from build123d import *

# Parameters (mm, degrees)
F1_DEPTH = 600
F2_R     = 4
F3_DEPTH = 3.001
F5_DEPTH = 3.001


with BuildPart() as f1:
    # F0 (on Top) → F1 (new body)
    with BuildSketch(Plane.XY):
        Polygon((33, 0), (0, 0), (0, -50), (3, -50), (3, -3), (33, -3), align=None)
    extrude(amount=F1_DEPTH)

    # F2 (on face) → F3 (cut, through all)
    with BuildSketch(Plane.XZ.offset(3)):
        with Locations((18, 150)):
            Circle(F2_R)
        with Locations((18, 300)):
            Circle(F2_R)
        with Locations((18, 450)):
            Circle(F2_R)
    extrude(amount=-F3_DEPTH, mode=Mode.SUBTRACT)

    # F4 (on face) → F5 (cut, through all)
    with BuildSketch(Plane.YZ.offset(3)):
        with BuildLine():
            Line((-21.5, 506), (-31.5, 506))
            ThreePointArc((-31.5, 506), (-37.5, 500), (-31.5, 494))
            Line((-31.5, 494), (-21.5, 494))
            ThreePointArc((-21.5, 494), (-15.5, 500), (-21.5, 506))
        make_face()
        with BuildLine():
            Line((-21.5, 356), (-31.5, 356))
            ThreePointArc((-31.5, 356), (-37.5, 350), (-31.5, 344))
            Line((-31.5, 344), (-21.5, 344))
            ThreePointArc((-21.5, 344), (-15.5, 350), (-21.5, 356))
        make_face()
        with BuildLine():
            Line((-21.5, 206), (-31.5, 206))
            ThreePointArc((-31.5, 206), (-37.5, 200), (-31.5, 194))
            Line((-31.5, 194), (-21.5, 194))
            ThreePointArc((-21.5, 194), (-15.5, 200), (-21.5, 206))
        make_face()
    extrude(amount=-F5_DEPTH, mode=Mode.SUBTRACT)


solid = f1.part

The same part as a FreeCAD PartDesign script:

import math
import FreeCAD as App
import Part
import Sketcher
Q = App.Units.Quantity


def add_polygon(sketch, points):
    """Adds a closed chain of lines whose ends are joined by coincident constraints."""
    first, n = sketch.GeometryCount, len(points)
    for a, b in zip(points, points[1:] + points[:1]):
        sketch.addGeometry(Part.LineSegment(App.Vector(*a, 0), App.Vector(*b, 0)), False)
    for i in range(n):
        sketch.addConstraint(Sketcher.Constraint("Coincident", first + i, 2, first + (i + 1) % n, 1))

doc = App.newDocument("Part")
params = doc.addObject("Spreadsheet::Sheet", "Params")
for row, (alias, value) in enumerate([
    ("sketch1_width", "33 mm"),
    ("sketch1_width2", "3 mm"),
    ("sketch1_height", "50 mm"),
    ("pad1_length", "600 mm"),
    ("sketch2_diameter", "8 mm"),
    ("sketch3_radius", "6 mm"),
    ("sketch3_width", "10 mm"),
], start=1):
    params.set(f"A{row}", alias)
    params.set(f"B{row}", "=" + value)
    params.setAlias(f"B{row}", alias)

body = doc.addObject("PartDesign::Body", "Body")

# Sketch on XY plane
sketch1 = doc.addObject("Sketcher::SketchObject", "Sketch")
body.addObject(sketch1)
sketch1.AttachmentSupport = (doc.XY_Plane, [""])
sketch1.MapMode = "FlatFace"
add_polygon(sketch1, [(33, 0), (0, 0), (0, -50), (3, -50), (3, -3), (33, -3)])  # lines 0-5
sketch1.addConstraint(Sketcher.Constraint("Horizontal", 0))
sketch1.addConstraint(Sketcher.Constraint("Vertical", 1))
sketch1.addConstraint(Sketcher.Constraint("Horizontal", 2))
sketch1.addConstraint(Sketcher.Constraint("Vertical", 3))
sketch1.addConstraint(Sketcher.Constraint("Horizontal", 4))
sketch1.addConstraint(Sketcher.Constraint("Vertical", 5))
sketch1.addConstraint(Sketcher.Constraint("Coincident", 0, 2, -1, 1))
sketch1.addConstraint(Sketcher.Constraint("Equal", 2, 5))
sketch1.addConstraint(Sketcher.Constraint("DistanceX", 0, 2, 0, 1, Q("33 mm")))
sketch1.addConstraint(Sketcher.Constraint("DistanceX", 2, 1, 2, 2, Q("3 mm")))
sketch1.addConstraint(Sketcher.Constraint("DistanceY", 1, 2, 1, 1, Q("50 mm")))
sketch1.setExpression("Constraints[14]", "Params.sketch1_width")
sketch1.setExpression("Constraints[15]", "Params.sketch1_width2")
sketch1.setExpression("Constraints[16]", "Params.sketch1_height")
pad1 = doc.addObject("PartDesign::Pad", "Pad")
body.addObject(pad1)
pad1.Profile = sketch1
pad1.setExpression("Length", "Params.pad1_length")

# Sketch on XZ plane
sketch2 = doc.addObject("Sketcher::SketchObject", "Sketch001")
body.addObject(sketch2)
sketch2.AttachmentSupport = (doc.XZ_Plane, [""])
sketch2.MapMode = "FlatFace"
sketch2.AttachmentOffset = App.Placement(App.Vector(0, 0, 3), App.Rotation())
sketch2.addGeometry(Part.Circle(App.Vector(18, 150, 0), App.Vector(0, 0, 1), 4), False)
sketch2.addGeometry(Part.Circle(App.Vector(18, 300, 0), App.Vector(0, 0, 1), 4), False)
sketch2.addGeometry(Part.Circle(App.Vector(18, 450, 0), App.Vector(0, 0, 1), 4), False)
sketch2.addConstraint(Sketcher.Constraint("Equal", 0, 1))
sketch2.addConstraint(Sketcher.Constraint("Equal", 1, 2))
sketch2.addConstraint(Sketcher.Constraint("Vertical", 0, 3, 1, 3))
sketch2.addConstraint(Sketcher.Constraint("Vertical", 1, 3, 2, 3))
sketch2.addConstraint(Sketcher.Constraint("Diameter", 0, Q("8 mm")))
sketch2.addConstraint(Sketcher.Constraint("DistanceX", -1, 1, 0, 3, Q("18 mm")))
sketch2.addConstraint(Sketcher.Constraint("DistanceY", -1, 1, 0, 3, Q("150 mm")))
sketch2.addConstraint(Sketcher.Constraint("DistanceY", -1, 1, 1, 3, Q("300 mm")))
sketch2.addConstraint(Sketcher.Constraint("DistanceY", -1, 1, 2, 3, Q("450 mm")))
sketch2.setExpression("Constraints[4]", "Params.sketch2_diameter")
pocket1 = doc.addObject("PartDesign::Pocket", "Pocket")
body.addObject(pocket1)
pocket1.Profile = sketch2
pocket1.Type = "ThroughAll"

# Sketch on YZ plane
sketch3 = doc.addObject("Sketcher::SketchObject", "Sketch002")
body.addObject(sketch3)
sketch3.AttachmentSupport = (doc.YZ_Plane, [""])
sketch3.MapMode = "FlatFace"
sketch3.AttachmentOffset = App.Placement(App.Vector(0, 0, 3), App.Rotation())
sketch3.addGeometry(Part.LineSegment(App.Vector(-22, 506, 0), App.Vector(-32, 506, 0)), False)
sketch3.addGeometry(Part.ArcOfCircle(Part.Circle(App.Vector(-32, 500, 0), App.Vector(0, 0, 1), 6), math.radians(90), math.radians(270)), False)
sketch3.addGeometry(Part.LineSegment(App.Vector(-32, 494, 0), App.Vector(-22, 494, 0)), False)
sketch3.addGeometry(Part.ArcOfCircle(Part.Circle(App.Vector(-22, 500, 0), App.Vector(0, 0, 1), 6), math.radians(-90), math.radians(90)), False)
sketch3.addGeometry(Part.LineSegment(App.Vector(-22, 356, 0), App.Vector(-32, 356, 0)), False)
sketch3.addGeometry(Part.ArcOfCircle(Part.Circle(App.Vector(-32, 350, 0), App.Vector(0, 0, 1), 6), math.radians(90), math.radians(270)), False)
sketch3.addGeometry(Part.LineSegment(App.Vector(-32, 344, 0), App.Vector(-22, 344, 0)), False)
sketch3.addGeometry(Part.ArcOfCircle(Part.Circle(App.Vector(-22, 350, 0), App.Vector(0, 0, 1), 6), math.radians(-90), math.radians(90)), False)
sketch3.addGeometry(Part.LineSegment(App.Vector(-22, 206, 0), App.Vector(-32, 206, 0)), False)
sketch3.addGeometry(Part.ArcOfCircle(Part.Circle(App.Vector(-32, 200, 0), App.Vector(0, 0, 1), 6), math.radians(90), math.radians(270)), False)
sketch3.addGeometry(Part.LineSegment(App.Vector(-32, 194, 0), App.Vector(-22, 194, 0)), False)
sketch3.addGeometry(Part.ArcOfCircle(Part.Circle(App.Vector(-22, 200, 0), App.Vector(0, 0, 1), 6), math.radians(-90), math.radians(90)), False)
sketch3.addConstraint(Sketcher.Constraint("Tangent", 0, 2, 1, 1))
sketch3.addConstraint(Sketcher.Constraint("Tangent", 1, 2, 2, 1))
sketch3.addConstraint(Sketcher.Constraint("Tangent", 2, 2, 3, 1))
sketch3.addConstraint(Sketcher.Constraint("Tangent", 3, 2, 0, 1))
sketch3.addConstraint(Sketcher.Constraint("Tangent", 4, 2, 5, 1))
sketch3.addConstraint(Sketcher.Constraint("Tangent", 5, 2, 6, 1))
sketch3.addConstraint(Sketcher.Constraint("Tangent", 6, 2, 7, 1))
sketch3.addConstraint(Sketcher.Constraint("Tangent", 7, 2, 4, 1))
sketch3.addConstraint(Sketcher.Constraint("Tangent", 8, 2, 9, 1))
sketch3.addConstraint(Sketcher.Constraint("Tangent", 9, 2, 10, 1))
sketch3.addConstraint(Sketcher.Constraint("Tangent", 10, 2, 11, 1))
sketch3.addConstraint(Sketcher.Constraint("Tangent", 11, 2, 8, 1))
sketch3.addConstraint(Sketcher.Constraint("Horizontal", 0))
sketch3.addConstraint(Sketcher.Constraint("Horizontal", 2))
sketch3.addConstraint(Sketcher.Constraint("Horizontal", 4))
sketch3.addConstraint(Sketcher.Constraint("Horizontal", 6))
sketch3.addConstraint(Sketcher.Constraint("Horizontal", 8))
sketch3.addConstraint(Sketcher.Constraint("Horizontal", 10))
sketch3.addConstraint(Sketcher.Constraint("Equal", 3, 5))
sketch3.addConstraint(Sketcher.Constraint("Equal", 7, 9))
sketch3.addConstraint(Sketcher.Constraint("Vertical", 1, 3, 5, 3))
sketch3.addConstraint(Sketcher.Constraint("Vertical", 3, 3, 7, 3))
sketch3.addConstraint(Sketcher.Constraint("Vertical", 5, 3, 9, 3))
sketch3.addConstraint(Sketcher.Constraint("Vertical", 7, 3, 11, 3))
sketch3.addConstraint(Sketcher.Constraint("Radius", 1, Q("6 mm")))
sketch3.addConstraint(Sketcher.Constraint("DistanceX", 0, 2, 0, 1, Q("10 mm")))
sketch3.addConstraint(Sketcher.Constraint("DistanceY", -1, 1, 1, 3, Q("500 mm")))
sketch3.addConstraint(Sketcher.Constraint("DistanceY", -1, 1, 5, 3, Q("350 mm")))
sketch3.addConstraint(Sketcher.Constraint("DistanceY", -1, 1, 9, 3, Q("200 mm")))
sketch3.addConstraint(Sketcher.Constraint("DistanceX", 1, 3, -1, 1, Q("31.5 mm")))
sketch3.setExpression("Constraints[24]", "Params.sketch3_radius")
sketch3.setExpression("Constraints[25]", "Params.sketch3_width")
pocket2 = doc.addObject("PartDesign::Pocket", "Pocket001")
body.addObject(pocket2)
pocket2.Profile = sketch3
pocket2.Type = "ThroughAll"

doc.recompute()
